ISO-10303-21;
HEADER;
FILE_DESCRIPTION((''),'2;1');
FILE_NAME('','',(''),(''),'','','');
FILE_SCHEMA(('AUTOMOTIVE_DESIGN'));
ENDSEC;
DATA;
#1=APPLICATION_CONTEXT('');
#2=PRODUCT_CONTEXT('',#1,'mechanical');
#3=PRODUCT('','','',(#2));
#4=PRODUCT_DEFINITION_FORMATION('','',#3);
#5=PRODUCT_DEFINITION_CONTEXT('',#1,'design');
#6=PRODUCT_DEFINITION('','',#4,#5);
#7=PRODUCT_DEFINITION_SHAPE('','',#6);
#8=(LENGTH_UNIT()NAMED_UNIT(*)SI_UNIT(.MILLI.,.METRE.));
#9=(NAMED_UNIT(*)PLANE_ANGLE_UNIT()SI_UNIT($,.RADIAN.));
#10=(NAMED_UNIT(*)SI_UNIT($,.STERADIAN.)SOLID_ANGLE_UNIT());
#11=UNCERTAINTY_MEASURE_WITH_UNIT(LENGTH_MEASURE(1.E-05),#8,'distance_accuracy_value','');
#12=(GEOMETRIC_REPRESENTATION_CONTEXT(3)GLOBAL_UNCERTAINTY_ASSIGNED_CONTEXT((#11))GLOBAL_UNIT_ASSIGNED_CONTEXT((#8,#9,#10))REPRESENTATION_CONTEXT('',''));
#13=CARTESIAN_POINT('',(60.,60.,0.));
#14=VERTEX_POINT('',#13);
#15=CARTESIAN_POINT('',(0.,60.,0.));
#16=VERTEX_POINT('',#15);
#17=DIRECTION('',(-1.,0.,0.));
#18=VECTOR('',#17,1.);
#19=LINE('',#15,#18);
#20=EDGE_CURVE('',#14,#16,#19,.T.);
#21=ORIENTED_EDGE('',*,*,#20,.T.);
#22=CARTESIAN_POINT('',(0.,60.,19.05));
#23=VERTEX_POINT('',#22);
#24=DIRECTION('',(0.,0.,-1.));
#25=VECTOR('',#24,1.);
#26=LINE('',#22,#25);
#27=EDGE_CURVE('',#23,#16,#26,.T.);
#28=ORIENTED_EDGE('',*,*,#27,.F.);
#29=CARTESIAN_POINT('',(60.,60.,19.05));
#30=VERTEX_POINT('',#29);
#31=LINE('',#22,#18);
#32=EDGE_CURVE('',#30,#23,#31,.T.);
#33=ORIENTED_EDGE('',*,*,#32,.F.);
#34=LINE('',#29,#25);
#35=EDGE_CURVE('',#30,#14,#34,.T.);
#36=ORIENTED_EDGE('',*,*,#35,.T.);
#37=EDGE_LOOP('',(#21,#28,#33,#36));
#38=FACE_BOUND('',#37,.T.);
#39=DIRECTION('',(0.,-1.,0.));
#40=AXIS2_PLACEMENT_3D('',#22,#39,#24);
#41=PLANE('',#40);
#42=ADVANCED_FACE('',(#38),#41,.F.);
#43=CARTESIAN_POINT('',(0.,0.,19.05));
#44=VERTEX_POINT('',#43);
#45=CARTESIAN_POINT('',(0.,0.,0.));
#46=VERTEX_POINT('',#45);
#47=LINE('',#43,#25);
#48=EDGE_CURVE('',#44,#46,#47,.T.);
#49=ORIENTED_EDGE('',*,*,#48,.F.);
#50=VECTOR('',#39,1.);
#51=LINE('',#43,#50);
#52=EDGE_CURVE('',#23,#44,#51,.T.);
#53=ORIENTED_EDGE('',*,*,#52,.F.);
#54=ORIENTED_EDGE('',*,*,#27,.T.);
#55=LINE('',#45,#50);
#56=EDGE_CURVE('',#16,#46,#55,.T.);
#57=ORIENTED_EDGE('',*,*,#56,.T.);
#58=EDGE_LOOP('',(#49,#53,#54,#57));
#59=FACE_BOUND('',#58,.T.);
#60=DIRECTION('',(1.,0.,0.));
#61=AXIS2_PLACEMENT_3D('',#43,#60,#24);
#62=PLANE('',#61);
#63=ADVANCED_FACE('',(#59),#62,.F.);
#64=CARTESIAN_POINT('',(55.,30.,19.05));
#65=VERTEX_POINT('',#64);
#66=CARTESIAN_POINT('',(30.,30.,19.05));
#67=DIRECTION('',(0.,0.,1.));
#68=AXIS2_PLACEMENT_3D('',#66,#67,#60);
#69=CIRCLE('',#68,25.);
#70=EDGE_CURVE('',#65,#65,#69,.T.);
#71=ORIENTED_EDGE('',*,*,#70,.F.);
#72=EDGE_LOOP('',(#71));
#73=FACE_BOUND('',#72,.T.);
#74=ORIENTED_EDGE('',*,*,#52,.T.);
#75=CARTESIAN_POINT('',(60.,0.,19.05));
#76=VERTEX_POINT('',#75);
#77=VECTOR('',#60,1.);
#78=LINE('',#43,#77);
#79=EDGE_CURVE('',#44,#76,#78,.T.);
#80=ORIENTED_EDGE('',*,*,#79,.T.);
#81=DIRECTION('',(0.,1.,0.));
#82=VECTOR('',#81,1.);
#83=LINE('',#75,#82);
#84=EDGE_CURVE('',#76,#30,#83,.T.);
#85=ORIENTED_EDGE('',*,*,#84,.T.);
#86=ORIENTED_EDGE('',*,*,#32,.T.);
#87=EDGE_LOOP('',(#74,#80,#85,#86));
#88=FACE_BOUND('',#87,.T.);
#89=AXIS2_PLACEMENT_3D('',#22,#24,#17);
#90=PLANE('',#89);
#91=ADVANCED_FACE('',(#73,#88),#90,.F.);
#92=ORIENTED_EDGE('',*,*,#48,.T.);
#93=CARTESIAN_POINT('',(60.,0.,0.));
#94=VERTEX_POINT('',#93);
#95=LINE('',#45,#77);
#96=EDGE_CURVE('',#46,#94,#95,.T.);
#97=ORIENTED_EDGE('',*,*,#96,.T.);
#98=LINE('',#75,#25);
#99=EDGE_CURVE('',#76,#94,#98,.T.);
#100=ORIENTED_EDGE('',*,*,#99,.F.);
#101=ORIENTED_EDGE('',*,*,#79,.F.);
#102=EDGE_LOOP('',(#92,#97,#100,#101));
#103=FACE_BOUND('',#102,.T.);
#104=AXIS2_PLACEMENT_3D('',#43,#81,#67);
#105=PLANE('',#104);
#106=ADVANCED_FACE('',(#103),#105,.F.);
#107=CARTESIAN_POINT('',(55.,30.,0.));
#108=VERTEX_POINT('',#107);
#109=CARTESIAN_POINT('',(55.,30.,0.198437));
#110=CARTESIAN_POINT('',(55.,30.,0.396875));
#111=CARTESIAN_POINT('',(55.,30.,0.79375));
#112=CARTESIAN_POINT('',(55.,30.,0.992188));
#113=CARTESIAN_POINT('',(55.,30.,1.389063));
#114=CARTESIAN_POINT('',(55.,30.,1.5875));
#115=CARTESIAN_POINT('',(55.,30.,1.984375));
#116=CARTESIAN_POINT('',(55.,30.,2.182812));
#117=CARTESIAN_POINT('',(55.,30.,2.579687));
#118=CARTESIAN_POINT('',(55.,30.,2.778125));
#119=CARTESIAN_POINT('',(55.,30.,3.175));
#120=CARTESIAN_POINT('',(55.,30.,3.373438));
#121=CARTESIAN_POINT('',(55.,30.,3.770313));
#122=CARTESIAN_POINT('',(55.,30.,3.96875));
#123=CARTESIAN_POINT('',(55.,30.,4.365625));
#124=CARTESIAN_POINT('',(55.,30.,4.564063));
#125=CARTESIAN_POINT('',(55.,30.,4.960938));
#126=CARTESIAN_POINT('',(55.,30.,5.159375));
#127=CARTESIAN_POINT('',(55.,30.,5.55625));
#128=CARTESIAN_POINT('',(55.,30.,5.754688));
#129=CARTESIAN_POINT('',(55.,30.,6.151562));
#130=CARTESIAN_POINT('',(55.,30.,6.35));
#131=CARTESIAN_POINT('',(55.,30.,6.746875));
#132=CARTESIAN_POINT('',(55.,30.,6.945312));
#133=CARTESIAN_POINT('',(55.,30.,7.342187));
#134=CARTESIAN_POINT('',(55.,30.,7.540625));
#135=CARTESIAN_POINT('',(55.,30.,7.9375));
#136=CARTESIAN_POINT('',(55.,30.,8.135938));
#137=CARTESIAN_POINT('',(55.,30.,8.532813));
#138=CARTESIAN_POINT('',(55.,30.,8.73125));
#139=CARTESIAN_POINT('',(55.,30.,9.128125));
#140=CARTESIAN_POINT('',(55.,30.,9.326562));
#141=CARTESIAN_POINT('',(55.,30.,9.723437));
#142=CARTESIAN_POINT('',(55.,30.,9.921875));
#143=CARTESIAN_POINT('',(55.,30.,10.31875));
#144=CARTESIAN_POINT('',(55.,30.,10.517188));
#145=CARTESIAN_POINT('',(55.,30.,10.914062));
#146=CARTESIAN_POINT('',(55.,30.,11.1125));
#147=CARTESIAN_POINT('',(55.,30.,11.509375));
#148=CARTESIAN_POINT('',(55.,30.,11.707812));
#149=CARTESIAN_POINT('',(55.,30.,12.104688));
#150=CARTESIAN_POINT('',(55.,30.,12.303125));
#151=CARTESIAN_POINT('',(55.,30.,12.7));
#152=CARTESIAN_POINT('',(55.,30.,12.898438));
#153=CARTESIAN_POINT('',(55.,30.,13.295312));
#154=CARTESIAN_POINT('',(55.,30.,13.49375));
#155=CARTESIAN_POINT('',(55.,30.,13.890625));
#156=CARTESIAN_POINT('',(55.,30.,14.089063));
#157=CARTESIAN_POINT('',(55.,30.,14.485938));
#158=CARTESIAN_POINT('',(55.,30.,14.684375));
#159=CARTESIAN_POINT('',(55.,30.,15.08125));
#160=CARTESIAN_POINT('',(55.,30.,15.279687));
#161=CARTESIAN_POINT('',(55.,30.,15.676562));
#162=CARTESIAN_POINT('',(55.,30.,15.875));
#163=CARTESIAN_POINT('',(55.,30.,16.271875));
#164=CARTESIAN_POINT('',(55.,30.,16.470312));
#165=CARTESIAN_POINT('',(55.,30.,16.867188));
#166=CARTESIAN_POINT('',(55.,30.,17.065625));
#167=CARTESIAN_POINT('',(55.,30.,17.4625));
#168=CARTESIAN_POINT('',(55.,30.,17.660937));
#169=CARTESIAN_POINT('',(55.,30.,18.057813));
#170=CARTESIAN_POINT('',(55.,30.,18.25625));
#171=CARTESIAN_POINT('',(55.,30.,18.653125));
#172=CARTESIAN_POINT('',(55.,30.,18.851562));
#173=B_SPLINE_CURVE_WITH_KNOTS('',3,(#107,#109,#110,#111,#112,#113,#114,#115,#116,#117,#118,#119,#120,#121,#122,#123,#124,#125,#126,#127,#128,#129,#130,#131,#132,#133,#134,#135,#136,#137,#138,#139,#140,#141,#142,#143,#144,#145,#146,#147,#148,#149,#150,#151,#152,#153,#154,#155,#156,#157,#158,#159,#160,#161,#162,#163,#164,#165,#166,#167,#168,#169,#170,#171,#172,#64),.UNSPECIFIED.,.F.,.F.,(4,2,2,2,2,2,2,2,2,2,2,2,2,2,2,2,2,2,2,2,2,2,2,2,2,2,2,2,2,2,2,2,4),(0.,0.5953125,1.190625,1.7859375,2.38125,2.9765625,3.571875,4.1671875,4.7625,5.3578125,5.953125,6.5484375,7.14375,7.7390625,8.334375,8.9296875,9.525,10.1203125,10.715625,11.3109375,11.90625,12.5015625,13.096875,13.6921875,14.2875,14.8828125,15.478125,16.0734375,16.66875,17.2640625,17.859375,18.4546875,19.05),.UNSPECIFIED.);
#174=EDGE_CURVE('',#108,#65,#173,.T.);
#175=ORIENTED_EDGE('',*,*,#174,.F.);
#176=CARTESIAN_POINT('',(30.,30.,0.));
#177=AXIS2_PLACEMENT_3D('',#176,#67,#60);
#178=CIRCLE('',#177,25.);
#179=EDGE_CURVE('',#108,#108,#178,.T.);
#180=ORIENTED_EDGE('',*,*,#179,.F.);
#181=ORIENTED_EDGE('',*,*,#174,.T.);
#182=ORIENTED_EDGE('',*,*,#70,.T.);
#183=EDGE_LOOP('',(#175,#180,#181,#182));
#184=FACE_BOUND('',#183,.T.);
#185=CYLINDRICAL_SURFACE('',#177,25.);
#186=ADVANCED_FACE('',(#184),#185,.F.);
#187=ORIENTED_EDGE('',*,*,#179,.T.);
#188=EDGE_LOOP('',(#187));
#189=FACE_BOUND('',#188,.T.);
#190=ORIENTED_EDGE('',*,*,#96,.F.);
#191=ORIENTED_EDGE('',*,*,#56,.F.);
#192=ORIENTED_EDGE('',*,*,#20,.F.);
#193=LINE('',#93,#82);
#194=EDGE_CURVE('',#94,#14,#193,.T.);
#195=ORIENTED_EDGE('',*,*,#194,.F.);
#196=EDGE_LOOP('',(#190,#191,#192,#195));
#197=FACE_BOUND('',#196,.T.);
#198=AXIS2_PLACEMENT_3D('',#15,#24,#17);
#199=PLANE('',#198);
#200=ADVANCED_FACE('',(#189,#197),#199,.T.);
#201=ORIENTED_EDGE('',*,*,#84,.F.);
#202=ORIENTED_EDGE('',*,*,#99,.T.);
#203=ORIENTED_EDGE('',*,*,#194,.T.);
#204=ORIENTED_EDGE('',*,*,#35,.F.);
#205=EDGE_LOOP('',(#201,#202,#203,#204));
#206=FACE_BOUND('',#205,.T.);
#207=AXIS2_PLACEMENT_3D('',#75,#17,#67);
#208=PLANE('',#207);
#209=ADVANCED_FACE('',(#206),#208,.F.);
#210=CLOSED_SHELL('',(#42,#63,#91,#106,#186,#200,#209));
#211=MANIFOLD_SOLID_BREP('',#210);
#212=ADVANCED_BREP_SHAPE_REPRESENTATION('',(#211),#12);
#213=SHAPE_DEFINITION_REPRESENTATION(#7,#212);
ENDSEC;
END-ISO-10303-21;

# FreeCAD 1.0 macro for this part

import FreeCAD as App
import Part
import Sketcher

V = App.Vector


def add_polygon(sketch, points):
    """Adds a closed chain of lines whose ends are joined by coincident constraints."""
    first, n = sketch.GeometryCount, len(points)
    for a, b in zip(points, points[1:] + points[:1]):
        sketch.addGeometry(Part.LineSegment(App.Vector(*a, 0), App.Vector(*b, 0)), False)
    for i in range(n):
        sketch.addConstraint(Sketcher.Constraint("Coincident", first + i, 2, first + (i + 1) % n, 1))

doc = App.newDocument("Part")
params = doc.addObject("Spreadsheet::Sheet", "Params")
for row, (alias, value) in enumerate([
    ("sketch1_width", "60 mm"),
    ("pad1_length", "19.05 mm"),
    ("sketch2_diameter", "50 mm"),
], start=1):
    params.set(f"A{row}", alias)
    params.set(f"B{row}", "=" + value)
    params.setAlias(f"B{row}", alias)

body = doc.addObject("PartDesign::Body", "Body")

sketch1 = body.newObject("Sketcher::SketchObject", "Sketch")
sketch1.AttachmentSupport = (doc.getObject("XY_Plane"), [""])
sketch1.MapMode = "FlatFace"
add_polygon(sketch1, [(0, 60), (0, 0), (60, 0), (60, 60)])
sketch1.addConstraint([
    Sketcher.Constraint("Vertical", 0),
    Sketcher.Constraint("Horizontal", 1),
    Sketcher.Constraint("Vertical", 2),
    Sketcher.Constraint("Horizontal", 3),
    Sketcher.Constraint("Coincident", 0, 2, -1, 1),
    Sketcher.Constraint("Equal", 3, 0),
    Sketcher.Constraint("DistanceX", 1, 1, 1, 2, 60.0),
])
sketch1.setExpression("Constraints[10]", "Params.sketch1_width")
pad1 = body.newObject("PartDesign::Pad", "Pad")
pad1.Profile = sketch1
pad1.setExpression("Length", "Params.pad1_length")

sketch2 = body.newObject("Sketcher::SketchObject", "Sketch001")
sketch2.AttachmentSupport = (doc.getObject("XY_Plane"), [""])
sketch2.MapMode = "FlatFace"
sketch2.AttachmentOffset = App.Placement(V(0, 0, 19.05), App.Rotation())
sketch2.addGeometry(Part.Circle(V(30, 30, 0), V(0, 0, 1), 25), False)
sketch2.addConstraint([
    Sketcher.Constraint("Diameter", 0, 50.0),
    Sketcher.Constraint("DistanceX", -1, 1, 0, 3, 30.0),
    Sketcher.Constraint("DistanceY", -1, 1, 0, 3, 30.0),
])
sketch2.setExpression("Constraints[0]", "Params.sketch2_diameter")
pocket1 = body.newObject("PartDesign::Pocket", "Pocket")
pocket1.Profile = sketch2
pocket1.Type = "ThroughAll"

doc.recompute()
